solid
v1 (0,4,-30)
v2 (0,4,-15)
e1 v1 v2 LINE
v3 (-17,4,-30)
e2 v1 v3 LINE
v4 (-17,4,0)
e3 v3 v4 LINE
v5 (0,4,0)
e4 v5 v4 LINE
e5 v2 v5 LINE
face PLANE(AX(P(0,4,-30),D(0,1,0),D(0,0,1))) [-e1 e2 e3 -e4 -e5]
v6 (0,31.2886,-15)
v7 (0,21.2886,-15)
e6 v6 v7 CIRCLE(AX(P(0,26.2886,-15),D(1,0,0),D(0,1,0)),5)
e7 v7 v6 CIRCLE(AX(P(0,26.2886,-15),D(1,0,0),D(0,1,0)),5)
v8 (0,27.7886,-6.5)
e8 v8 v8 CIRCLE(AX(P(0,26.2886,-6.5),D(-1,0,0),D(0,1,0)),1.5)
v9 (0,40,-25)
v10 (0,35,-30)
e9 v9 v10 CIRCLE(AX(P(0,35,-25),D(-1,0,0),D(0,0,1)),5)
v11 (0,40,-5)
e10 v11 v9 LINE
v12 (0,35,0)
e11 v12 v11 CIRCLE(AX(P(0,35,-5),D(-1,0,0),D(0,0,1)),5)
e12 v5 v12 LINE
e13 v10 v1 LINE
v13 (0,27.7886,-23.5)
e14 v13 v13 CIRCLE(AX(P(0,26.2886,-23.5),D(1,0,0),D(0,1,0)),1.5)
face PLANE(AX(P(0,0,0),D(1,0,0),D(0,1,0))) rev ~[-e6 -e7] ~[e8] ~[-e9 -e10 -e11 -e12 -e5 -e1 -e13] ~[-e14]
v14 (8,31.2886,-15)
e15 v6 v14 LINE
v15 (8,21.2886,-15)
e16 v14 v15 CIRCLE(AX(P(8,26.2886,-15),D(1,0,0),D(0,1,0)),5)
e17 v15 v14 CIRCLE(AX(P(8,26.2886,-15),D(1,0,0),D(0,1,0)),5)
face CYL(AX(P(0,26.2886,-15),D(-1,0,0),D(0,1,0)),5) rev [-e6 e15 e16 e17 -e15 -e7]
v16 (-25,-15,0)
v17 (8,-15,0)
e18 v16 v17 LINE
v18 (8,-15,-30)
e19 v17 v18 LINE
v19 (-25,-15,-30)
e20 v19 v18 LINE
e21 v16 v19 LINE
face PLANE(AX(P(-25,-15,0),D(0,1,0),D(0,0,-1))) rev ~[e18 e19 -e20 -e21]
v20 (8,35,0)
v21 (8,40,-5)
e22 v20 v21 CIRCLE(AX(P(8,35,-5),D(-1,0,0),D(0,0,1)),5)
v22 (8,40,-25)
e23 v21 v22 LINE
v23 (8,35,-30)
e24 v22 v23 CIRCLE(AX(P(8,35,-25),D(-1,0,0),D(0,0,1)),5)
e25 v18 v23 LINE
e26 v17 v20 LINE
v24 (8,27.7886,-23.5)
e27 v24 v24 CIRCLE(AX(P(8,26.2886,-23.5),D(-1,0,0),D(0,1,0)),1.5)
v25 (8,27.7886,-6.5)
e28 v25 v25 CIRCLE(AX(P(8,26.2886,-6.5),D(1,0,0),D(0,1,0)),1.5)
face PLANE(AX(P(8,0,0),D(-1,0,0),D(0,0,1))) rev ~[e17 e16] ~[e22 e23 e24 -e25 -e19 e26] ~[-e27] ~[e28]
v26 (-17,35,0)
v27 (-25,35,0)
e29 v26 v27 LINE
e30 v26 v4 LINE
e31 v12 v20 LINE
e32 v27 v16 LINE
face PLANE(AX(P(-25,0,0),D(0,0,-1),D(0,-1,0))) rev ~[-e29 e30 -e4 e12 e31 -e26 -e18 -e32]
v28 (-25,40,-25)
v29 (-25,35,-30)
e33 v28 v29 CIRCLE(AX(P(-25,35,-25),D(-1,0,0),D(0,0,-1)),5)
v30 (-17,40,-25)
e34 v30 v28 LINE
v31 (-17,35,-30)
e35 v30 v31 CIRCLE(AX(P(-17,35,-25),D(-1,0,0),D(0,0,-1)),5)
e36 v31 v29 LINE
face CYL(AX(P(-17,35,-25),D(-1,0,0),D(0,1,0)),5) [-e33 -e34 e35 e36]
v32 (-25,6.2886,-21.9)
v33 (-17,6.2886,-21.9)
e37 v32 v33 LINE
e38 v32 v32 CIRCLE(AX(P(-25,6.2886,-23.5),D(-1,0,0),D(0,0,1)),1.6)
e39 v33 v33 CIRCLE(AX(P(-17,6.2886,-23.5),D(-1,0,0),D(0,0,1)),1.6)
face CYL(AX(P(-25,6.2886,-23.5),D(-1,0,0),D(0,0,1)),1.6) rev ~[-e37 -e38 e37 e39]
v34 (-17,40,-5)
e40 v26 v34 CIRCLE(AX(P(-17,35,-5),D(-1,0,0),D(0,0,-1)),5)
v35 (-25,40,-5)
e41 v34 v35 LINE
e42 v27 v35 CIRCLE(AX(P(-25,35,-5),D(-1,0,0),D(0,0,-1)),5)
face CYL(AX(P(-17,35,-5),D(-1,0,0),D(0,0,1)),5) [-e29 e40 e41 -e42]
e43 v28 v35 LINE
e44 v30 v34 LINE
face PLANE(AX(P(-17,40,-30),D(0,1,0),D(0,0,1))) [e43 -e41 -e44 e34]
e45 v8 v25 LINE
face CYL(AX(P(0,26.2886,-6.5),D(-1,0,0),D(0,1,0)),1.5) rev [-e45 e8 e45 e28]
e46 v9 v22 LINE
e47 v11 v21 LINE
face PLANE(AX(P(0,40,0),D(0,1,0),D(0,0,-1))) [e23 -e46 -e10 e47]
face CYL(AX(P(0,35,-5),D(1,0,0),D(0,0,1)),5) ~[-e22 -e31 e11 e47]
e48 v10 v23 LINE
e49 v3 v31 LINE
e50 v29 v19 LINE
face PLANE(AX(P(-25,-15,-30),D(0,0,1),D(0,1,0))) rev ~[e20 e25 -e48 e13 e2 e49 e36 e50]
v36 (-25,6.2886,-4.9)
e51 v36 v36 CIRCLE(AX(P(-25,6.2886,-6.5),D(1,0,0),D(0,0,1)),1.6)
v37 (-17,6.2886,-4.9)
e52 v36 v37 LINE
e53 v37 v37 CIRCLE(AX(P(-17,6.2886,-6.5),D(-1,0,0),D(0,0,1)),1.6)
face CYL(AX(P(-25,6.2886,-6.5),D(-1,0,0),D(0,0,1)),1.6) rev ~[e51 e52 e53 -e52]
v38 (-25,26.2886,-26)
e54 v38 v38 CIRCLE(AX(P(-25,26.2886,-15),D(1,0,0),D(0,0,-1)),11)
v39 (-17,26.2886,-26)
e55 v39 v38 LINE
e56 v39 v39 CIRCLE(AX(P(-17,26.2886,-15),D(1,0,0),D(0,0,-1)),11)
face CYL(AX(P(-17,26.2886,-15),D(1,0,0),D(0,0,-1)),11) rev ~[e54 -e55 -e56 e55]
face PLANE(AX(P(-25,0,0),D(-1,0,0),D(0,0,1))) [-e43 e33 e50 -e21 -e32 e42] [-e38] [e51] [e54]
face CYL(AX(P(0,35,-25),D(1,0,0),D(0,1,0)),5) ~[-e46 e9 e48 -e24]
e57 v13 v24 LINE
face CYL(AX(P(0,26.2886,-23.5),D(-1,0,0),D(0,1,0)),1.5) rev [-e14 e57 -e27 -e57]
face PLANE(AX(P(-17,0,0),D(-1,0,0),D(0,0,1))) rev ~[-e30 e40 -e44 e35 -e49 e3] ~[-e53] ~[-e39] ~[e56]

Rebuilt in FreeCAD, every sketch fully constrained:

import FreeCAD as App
import Part
import Sketcher


def edges_at(feature, points):
    """Names of the edges that pass closest to the given points."""
    edges = feature.Shape.Edges
    near = lambda p: min(range(len(edges)), key=lambda i: edges[i].distToShape(Part.Vertex(*p))[0])
    return sorted({f"Edge{near(p) + 1}" for p in points})


def add_polygon(sketch, points):
    """Adds a closed chain of lines whose ends are joined by coincident constraints."""
    first, n = sketch.GeometryCount, len(points)
    for a, b in zip(points, points[1:] + points[:1]):
        sketch.addGeometry(Part.LineSegment(App.Vector(*a, 0), App.Vector(*b, 0)), False)
    for i in range(n):
        sketch.addConstraint(Sketcher.Constraint("Coincident", first + i, 2, first + (i + 1) % n, 1))

doc = App.newDocument("Part")
body = doc.addObject("PartDesign::Body", "Body")

sketch1 = body.newObject("Sketcher::SketchObject", "Sketch")
sketch1.AttachmentSupport = (doc.getObject("YZ_Plane"), [""])
sketch1.MapMode = "FlatFace"
add_polygon(sketch1, [(40, 0), (0, 0), (0, -15), (0, -30), (40, -30)])
sketch1.addGeometry(Part.Circle(App.Vector(26.3, -6.5, 0), App.Vector(0, 0, 1), 1.5), False)
sketch1.addGeometry(Part.Circle(App.Vector(26.3, -23.5, 0), App.Vector(0, 0, 1), 1.5), False)
sketch1.addGeometry(Part.Circle(App.Vector(26.3, -15, 0), App.Vector(0, 0, 1), 5), False)
sketch1.addConstraint([
    Sketcher.Constraint("Horizontal", 0),
    Sketcher.Constraint("Vertical", 1),
    Sketcher.Constraint("Vertical", 2),
    Sketcher.Constraint("Horizontal", 3),
    Sketcher.Constraint("Vertical", 4),
    Sketcher.Constraint("Coincident", 0, 2, -1, 1),
    Sketcher.Constraint("Equal", 5, 6),
    Sketcher.Constraint("Horizontal", 7, 3, 1, 2),
    Sketcher.Constraint("Vertical", 5, 3, 6, 3),
    Sketcher.Constraint("Vertical", 6, 3, 7, 3),
    Sketcher.Constraint("Equal", 1, 2),
    Sketcher.Constraint("Diameter", 5, 3.0),
    Sketcher.Constraint("Diameter", 7, 10.0),
    Sketcher.Constraint("DistanceX", 0, 2, 0, 1, 40.0),
    Sketcher.Constraint("DistanceY", 4, 1, 4, 2, 30.0),
    Sketcher.Constraint("DistanceY", 6, 3, 5, 3, 17.0),
    Sketcher.Constraint("DistanceY", 5, 3, -1, 1, 6.5),
    Sketcher.Constraint("DistanceX", -1, 1, 5, 3, 26.2886),
])
pad1 = body.newObject("PartDesign::Pad", "Pad")
pad1.Profile = sketch1
pad1.Length = 8

sketch2 = body.newObject("Sketcher::SketchObject", "Sketch001")
sketch2.AttachmentSupport = (doc.getObject("YZ_Plane"), [""])
sketch2.MapMode = "FlatFace"
add_polygon(sketch2, [(0, 0), (4, 0), (4, -30), (0, -30)])
sketch2.addConstraint([
    Sketcher.Constraint("Horizontal", 0),
    Sketcher.Constraint("Vertical", 1),
    Sketcher.Constraint("Horizontal", 2),
    Sketcher.Constraint("Vertical", 3),
    Sketcher.Constraint("Coincident", 3, 2, -1, 1),
    Sketcher.Constraint("DistanceX", 0, 1, 0, 2, 4.0),
    Sketcher.Constraint("DistanceY", 1, 2, 1, 1, 30.0),
])
pad2 = body.newObject("PartDesign::Pad", "Pad001")
pad2.Profile = sketch2
pad2.Length = 17
pad2.Reversed = True

sketch3 = body.newObject("Sketcher::SketchObject", "Sketch002")
sketch3.AttachmentSupport = (doc.getObject("YZ_Plane"), [""])
sketch3.MapMode = "FlatFace"
sketch3.AttachmentOffset = App.Placement(App.Vector(0, 0, -17), App.Rotation())
add_polygon(sketch3, [(0, 0), (40, 0), (40, -30), (0, -30)])
sketch3.addConstraint([
    Sketcher.Constraint("Horizontal", 0),
    Sketcher.Constraint("Vertical", 1),
    Sketcher.Constraint("Horizontal", 2),
    Sketcher.Constraint("Vertical", 3),
    Sketcher.Constraint("Coincident", 3, 2, -1, 1),
    Sketcher.Constraint("DistanceX", 0, 1, 0, 2, 40.0),
    Sketcher.Constraint("DistanceY", 1, 2, 1, 1, 30.0),
])
pad3 = body.newObject("PartDesign::Pad", "Pad002")
pad3.Profile = sketch3
pad3.Length = 8
pad3.Reversed = True

sketch4 = body.newObject("Sketcher::SketchObject", "Sketch003")
sketch4.AttachmentSupport = (doc.getObject("YZ_Plane"), [""])
sketch4.MapMode = "FlatFace"
sketch4.AttachmentOffset = App.Placement(App.Vector(0, 0, -17), App.Rotation())
sketch4.addGeometry(Part.Circle(App.Vector(26, -15, 0), App.Vector(0, 0, 1), 11), False)
sketch4.addConstraint([
    Sketcher.Constraint("Diameter", 0, 22.0),
    Sketcher.Constraint("DistanceY", 0, 3, -1, 1, 15.0),
    Sketcher.Constraint("DistanceX", -1, 1, 0, 3, 26.2886),
])
pocket1 = body.newObject("PartDesign::Pocket", "Pocket")
pocket1.Profile = sketch4
pocket1.Type = "ThroughAll"
doc.recompute()

fillet = body.newObject("PartDesign::Fillet", "Fillet")
fillet.Base = (pocket1, edges_at(pocket1, [
    (4, 40, 0),
    (-21, 40, 0),
    (-21, 40, -30),
    (4, 40, -30),
]))
fillet.Radius = 5

sketch5 = body.newObject("Sketcher::SketchObject", "Sketch004")
sketch5.AttachmentSupport = (doc.getObject("YZ_Plane"), [""])
sketch5.MapMode = "FlatFace"
sketch5.AttachmentOffset = App.Placement(App.Vector(0, 0, -25), App.Rotation())
sketch5.addGeometry([
    Part.Circle(App.Vector(6.3, -6.5, 0), App.Vector(0, 0, 1), 1.6),
    Part.Circle(App.Vector(6.3, -23.5, 0), App.Vector(0, 0, 1), 1.6),
], False)
sketch5.addConstraint([
    Sketcher.Constraint("Equal", 0, 1),
    Sketcher.Constraint("Vertical", 0, 3, 1, 3),
    Sketcher.Constraint("Diameter", 0, 3.2),
    Sketcher.Constraint("DistanceY", 1, 3, 0, 3, 17.0),
    Sketcher.Constraint("DistanceY", 0, 3, -1, 1, 6.5),
    Sketcher.Constraint("DistanceX", -1, 1, 0, 3, 6.2886),
])
pocket2 = body.newObject("PartDesign::Pocket", "Pocket001")
pocket2.Profile = sketch5
pocket2.Length = 10
pocket2.Reversed = True

sketch6 = body.newObject("Sketcher::SketchObject", "Sketch005")
sketch6.AttachmentSupport = (doc.getObject("YZ_Plane"), [""])
sketch6.MapMode = "FlatFace"
sketch6.AttachmentOffset = App.Placement(App.Vector(0, 0, -25), App.Rotation())
add_polygon(sketch6, [(0, 0), (0, -30), (-15, -30), (-15, 0)])
sketch6.addConstraint([
    Sketcher.Constraint("Vertical", 0),
    Sketcher.Constraint("Horizontal", 1),
    Sketcher.Constraint("Vertical", 2),
    Sketcher.Constraint("Horizontal", 3),
    Sketcher.Constraint("Coincident", 3, 2, -1, 1),
    Sketcher.Constraint("DistanceX", 1, 2, 1, 1, 15.0),
    Sketcher.Constraint("DistanceY", 0, 2, 0, 1, 30.0),
])
pad4 = body.newObject("PartDesign::Pad", "Pad003")
pad4.Profile = sketch6
pad4.Length = 33

doc.recompute()
